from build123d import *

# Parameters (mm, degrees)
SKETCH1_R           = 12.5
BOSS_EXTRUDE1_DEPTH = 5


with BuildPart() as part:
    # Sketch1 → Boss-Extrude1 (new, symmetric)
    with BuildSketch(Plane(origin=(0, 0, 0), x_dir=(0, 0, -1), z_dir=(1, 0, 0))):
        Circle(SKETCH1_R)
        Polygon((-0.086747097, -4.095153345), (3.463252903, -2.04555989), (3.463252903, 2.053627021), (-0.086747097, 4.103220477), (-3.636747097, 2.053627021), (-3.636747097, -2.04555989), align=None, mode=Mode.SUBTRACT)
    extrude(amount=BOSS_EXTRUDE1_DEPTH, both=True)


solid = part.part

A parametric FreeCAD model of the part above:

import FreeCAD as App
import Part
import Sketcher

V = App.Vector
Q = App.Units.Quantity


def add_polygon(sketch, points):
    """Adds a closed chain of lines whose ends are joined by coincident constraints."""
    first, n = sketch.GeometryCount, len(points)
    for a, b in zip(points, points[1:] + points[:1]):
        sketch.addGeometry(Part.LineSegment(App.Vector(*a, 0), App.Vector(*b, 0)), False)
    for i in range(n):
        sketch.addConstraint(Sketcher.Constraint("Coincident", first + i, 2, first + (i + 1) % n, 1))

doc = App.newDocument("Part")
body = doc.addObject("PartDesign::Body", "Body")

sketch1 = doc.addObject("Sketcher::SketchObject", "Sketch")
body.addObject(sketch1)
sketch1.AttachmentSupport = (doc.YZ_Plane, [""])
sketch1.MapMode = "FlatFace"
sketch1.addGeometry(Part.Circle(V(0, 0, 0), V(0, 0, 1), 12.5), False)
add_polygon(sketch1, [(-2, -3.5), (-4.1, 0.1), (-2, 3.6), (2.1, 3.6), (4.1, 0.1), (2.1, -3.5)])
sketch1.addConstraint(Sketcher.Constraint("Horizontal", 3))
sketch1.addConstraint(Sketcher.Constraint("Horizontal", 6))
sketch1.addConstraint(Sketcher.Constraint("Coincident", 0, 3, -1, 1))
sketch1.addConstraint(Sketcher.Constraint("Parallel", 1, 4))
sketch1.addConstraint(Sketcher.Constraint("Parallel", 2, 5))
sketch1.addConstraint(Sketcher.Constraint("Horizontal", 1, 2, 4, 2))
sketch1.addConstraint(Sketcher.Constraint("Vertical", 3, 2, 5, 2))
sketch1.addConstraint(Sketcher.Constraint("Vertical", 2, 2, 6, 2))
sketch1.addConstraint(Sketcher.Constraint("Diameter", 0, Q("25 mm")))
sketch1.addConstraint(Sketcher.Constraint("Angle", 1, Q("120 deg")))
sketch1.addConstraint(Sketcher.Constraint("DistanceY", 5, 2, 3, 2, Q("7.1 mm")))
sketch1.addConstraint(Sketcher.Constraint("DistanceX", 3, 1, 3, 2, Q("4.099187 mm")))
sketch1.addConstraint(Sketcher.Constraint("DistanceX", 2, 2, -1, 1, Q("2.04556 mm")))
sketch1.addConstraint(Sketcher.Constraint("DistanceY", -1, 1, 1, 2, Q("0.086747 mm")))
pad1 = doc.addObject("PartDesign::Pad", "Pad")
body.addObject(pad1)
pad1.Profile = sketch1
pad1.Length = 10
pad1.Midplane = True

doc.recompute()
